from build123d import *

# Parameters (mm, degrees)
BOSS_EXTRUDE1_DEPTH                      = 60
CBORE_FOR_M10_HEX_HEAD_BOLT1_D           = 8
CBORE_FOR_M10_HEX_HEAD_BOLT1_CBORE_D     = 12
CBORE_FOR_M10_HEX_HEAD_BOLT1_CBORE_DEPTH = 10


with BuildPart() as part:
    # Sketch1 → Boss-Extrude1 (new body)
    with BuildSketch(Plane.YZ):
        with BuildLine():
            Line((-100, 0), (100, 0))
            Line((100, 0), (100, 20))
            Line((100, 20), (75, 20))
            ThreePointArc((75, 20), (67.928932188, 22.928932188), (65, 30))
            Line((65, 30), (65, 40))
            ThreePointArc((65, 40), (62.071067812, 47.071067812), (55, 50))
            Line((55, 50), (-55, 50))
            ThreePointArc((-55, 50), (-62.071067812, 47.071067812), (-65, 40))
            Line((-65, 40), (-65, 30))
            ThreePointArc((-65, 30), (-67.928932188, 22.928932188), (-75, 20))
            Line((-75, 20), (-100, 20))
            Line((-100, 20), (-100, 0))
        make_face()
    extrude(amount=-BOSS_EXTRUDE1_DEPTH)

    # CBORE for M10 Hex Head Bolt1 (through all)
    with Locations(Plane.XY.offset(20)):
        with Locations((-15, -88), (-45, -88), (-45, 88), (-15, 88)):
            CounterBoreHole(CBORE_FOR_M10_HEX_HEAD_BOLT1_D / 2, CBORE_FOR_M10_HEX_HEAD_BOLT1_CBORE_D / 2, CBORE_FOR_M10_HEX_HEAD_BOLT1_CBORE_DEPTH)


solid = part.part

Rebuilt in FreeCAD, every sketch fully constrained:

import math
import FreeCAD as App
import Part
import Sketcher

V = App.Vector

doc = App.newDocument("Part")
body = doc.addObject("PartDesign::Body", "Body")

sketch1 = body.newObject("Sketcher::SketchObject", "Sketch")
sketch1.AttachmentSupport = (doc.getObject("YZ_Plane"), [""])
sketch1.MapMode = "FlatFace"
sketch1.addGeometry([
    Part.LineSegment(V(-100, 0, 0), V(100, 0, 0)),
    Part.LineSegment(V(100, 0, 0), V(100, 20, 0)),
    Part.LineSegment(V(100, 20, 0), V(75, 20, 0)),
    Part.ArcOfCircle(Part.Circle(V(75, 30, 0), V(0, 0, 1), 10), math.radians(180), math.radians(270)),
    Part.LineSegment(V(65, 30, 0), V(65, 40, 0)),
    Part.ArcOfCircle(Part.Circle(V(55, 40, 0), V(0, 0, 1), 10), math.radians(0), math.radians(90)),
    Part.LineSegment(V(55, 50, 0), V(-55, 50, 0)),
    Part.ArcOfCircle(Part.Circle(V(-55, 40, 0), V(0, 0, 1), 10), math.radians(90), math.radians(180)),
    Part.LineSegment(V(-65, 40, 0), V(-65, 30, 0)),
    Part.ArcOfCircle(Part.Circle(V(-75, 30, 0), V(0, 0, 1), 10), math.radians(-90), math.radians(0)),
    Part.LineSegment(V(-75, 20, 0), V(-100, 20, 0)),
    Part.LineSegment(V(-100, 20, 0), V(-100, 0, 0)),
], False)
sketch1.addConstraint([
    Sketcher.Constraint("Coincident", 0, 2, 1, 1),
    Sketcher.Constraint("Coincident", 1, 2, 2, 1),
    Sketcher.Constraint("Tangent", 2, 2, 3, 2),
    Sketcher.Constraint("Tangent", 3, 1, 4, 1),
    Sketcher.Constraint("Tangent", 4, 2, 5, 1),
    Sketcher.Constraint("Tangent", 5, 2, 6, 1),
    Sketcher.Constraint("Tangent", 6, 2, 7, 1),
    Sketcher.Constraint("Tangent", 7, 2, 8, 1),
    Sketcher.Constraint("Tangent", 8, 2, 9, 2),
    Sketcher.Constraint("Tangent", 9, 1, 10, 1),
    Sketcher.Constraint("Coincident", 10, 2, 11, 1),
    Sketcher.Constraint("Coincident", 11, 2, 0, 1),
    Sketcher.Constraint("Horizontal", 0),
    Sketcher.Constraint("Vertical", 1),
    Sketcher.Constraint("Horizontal", 2),
    Sketcher.Constraint("Vertical", 4),
    Sketcher.Constraint("Horizontal", 6),
    Sketcher.Constraint("Vertical", 8),
    Sketcher.Constraint("Horizontal", 10),
    Sketcher.Constraint("Vertical", 11),
    Sketcher.Constraint("Equal", 3, 5),
    Sketcher.Constraint("Equal", 5, 7),
    Sketcher.Constraint("Equal", 7, 9),
    Sketcher.Constraint("Symmetric", 0, 2, 11, 2, -1, 1),
    Sketcher.Constraint("Symmetric", 3, 3, 9, 3, -2),
    Sketcher.Constraint("Radius", 3, 10.0),
    Sketcher.Constraint("DistanceX", 0, 1, 0, 2, 200.0),
    Sketcher.Constraint("DistanceX", 2, 2, 2, 1, 25.0),
    Sketcher.Constraint("DistanceY", 1, 1, 1, 2, 20.0),
    Sketcher.Constraint("DistanceY", 4, 1, 4, 2, 10.0),
])
pad1 = body.newObject("PartDesign::Pad", "Pad")
pad1.Profile = sketch1
pad1.Length = 60
pad1.Reversed = True

sketch2 = body.newObject("Sketcher::SketchObject", "Sketch001")
sketch2.AttachmentSupport = (doc.getObject("XY_Plane"), [""])
sketch2.MapMode = "FlatFace"
sketch2.AttachmentOffset = App.Placement(V(0, 0, 20), App.Rotation())
sketch2.addGeometry([
    Part.Circle(V(-15, -88, 0), V(0, 0, 1), 4),
    Part.Circle(V(-45, -88, 0), V(0, 0, 1), 4),
    Part.Circle(V(-45, 88, 0), V(0, 0, 1), 4),
    Part.Circle(V(-15, 88, 0), V(0, 0, 1), 4),
], False)
sketch2.addConstraint([
    Sketcher.Constraint("Equal", 0, 1),
    Sketcher.Constraint("Equal", 1, 2),
    Sketcher.Constraint("Equal", 2, 3),
    Sketcher.Constraint("Symmetric", 1, 3, 2, 3, -1),
    Sketcher.Constraint("Symmetric", 0, 3, 3, 3, -1),
    Sketcher.Constraint("Horizontal", 0, 3, 1, 3),
    Sketcher.Constraint("Diameter", 0, 8.0),
    Sketcher.Constraint("DistanceX", 0, 3, -1, 1, 15.0),
    Sketcher.Constraint("DistanceY", 0, 3, -1, 1, 88.0),
    Sketcher.Constraint("DistanceX", 1, 3, -1, 1, 45.0),
])
doc.recompute()
hole = body.newObject("PartDesign::Hole", "Hole")
hole.Profile = sketch2
hole.ThreadType = "None"
hole.Diameter = 8
hole.DepthType = "ThroughAll"
hole.HoleCutType = "Counterbore"
hole.HoleCutDiameter = 12
hole.HoleCutDepth = 10

doc.recompute()
